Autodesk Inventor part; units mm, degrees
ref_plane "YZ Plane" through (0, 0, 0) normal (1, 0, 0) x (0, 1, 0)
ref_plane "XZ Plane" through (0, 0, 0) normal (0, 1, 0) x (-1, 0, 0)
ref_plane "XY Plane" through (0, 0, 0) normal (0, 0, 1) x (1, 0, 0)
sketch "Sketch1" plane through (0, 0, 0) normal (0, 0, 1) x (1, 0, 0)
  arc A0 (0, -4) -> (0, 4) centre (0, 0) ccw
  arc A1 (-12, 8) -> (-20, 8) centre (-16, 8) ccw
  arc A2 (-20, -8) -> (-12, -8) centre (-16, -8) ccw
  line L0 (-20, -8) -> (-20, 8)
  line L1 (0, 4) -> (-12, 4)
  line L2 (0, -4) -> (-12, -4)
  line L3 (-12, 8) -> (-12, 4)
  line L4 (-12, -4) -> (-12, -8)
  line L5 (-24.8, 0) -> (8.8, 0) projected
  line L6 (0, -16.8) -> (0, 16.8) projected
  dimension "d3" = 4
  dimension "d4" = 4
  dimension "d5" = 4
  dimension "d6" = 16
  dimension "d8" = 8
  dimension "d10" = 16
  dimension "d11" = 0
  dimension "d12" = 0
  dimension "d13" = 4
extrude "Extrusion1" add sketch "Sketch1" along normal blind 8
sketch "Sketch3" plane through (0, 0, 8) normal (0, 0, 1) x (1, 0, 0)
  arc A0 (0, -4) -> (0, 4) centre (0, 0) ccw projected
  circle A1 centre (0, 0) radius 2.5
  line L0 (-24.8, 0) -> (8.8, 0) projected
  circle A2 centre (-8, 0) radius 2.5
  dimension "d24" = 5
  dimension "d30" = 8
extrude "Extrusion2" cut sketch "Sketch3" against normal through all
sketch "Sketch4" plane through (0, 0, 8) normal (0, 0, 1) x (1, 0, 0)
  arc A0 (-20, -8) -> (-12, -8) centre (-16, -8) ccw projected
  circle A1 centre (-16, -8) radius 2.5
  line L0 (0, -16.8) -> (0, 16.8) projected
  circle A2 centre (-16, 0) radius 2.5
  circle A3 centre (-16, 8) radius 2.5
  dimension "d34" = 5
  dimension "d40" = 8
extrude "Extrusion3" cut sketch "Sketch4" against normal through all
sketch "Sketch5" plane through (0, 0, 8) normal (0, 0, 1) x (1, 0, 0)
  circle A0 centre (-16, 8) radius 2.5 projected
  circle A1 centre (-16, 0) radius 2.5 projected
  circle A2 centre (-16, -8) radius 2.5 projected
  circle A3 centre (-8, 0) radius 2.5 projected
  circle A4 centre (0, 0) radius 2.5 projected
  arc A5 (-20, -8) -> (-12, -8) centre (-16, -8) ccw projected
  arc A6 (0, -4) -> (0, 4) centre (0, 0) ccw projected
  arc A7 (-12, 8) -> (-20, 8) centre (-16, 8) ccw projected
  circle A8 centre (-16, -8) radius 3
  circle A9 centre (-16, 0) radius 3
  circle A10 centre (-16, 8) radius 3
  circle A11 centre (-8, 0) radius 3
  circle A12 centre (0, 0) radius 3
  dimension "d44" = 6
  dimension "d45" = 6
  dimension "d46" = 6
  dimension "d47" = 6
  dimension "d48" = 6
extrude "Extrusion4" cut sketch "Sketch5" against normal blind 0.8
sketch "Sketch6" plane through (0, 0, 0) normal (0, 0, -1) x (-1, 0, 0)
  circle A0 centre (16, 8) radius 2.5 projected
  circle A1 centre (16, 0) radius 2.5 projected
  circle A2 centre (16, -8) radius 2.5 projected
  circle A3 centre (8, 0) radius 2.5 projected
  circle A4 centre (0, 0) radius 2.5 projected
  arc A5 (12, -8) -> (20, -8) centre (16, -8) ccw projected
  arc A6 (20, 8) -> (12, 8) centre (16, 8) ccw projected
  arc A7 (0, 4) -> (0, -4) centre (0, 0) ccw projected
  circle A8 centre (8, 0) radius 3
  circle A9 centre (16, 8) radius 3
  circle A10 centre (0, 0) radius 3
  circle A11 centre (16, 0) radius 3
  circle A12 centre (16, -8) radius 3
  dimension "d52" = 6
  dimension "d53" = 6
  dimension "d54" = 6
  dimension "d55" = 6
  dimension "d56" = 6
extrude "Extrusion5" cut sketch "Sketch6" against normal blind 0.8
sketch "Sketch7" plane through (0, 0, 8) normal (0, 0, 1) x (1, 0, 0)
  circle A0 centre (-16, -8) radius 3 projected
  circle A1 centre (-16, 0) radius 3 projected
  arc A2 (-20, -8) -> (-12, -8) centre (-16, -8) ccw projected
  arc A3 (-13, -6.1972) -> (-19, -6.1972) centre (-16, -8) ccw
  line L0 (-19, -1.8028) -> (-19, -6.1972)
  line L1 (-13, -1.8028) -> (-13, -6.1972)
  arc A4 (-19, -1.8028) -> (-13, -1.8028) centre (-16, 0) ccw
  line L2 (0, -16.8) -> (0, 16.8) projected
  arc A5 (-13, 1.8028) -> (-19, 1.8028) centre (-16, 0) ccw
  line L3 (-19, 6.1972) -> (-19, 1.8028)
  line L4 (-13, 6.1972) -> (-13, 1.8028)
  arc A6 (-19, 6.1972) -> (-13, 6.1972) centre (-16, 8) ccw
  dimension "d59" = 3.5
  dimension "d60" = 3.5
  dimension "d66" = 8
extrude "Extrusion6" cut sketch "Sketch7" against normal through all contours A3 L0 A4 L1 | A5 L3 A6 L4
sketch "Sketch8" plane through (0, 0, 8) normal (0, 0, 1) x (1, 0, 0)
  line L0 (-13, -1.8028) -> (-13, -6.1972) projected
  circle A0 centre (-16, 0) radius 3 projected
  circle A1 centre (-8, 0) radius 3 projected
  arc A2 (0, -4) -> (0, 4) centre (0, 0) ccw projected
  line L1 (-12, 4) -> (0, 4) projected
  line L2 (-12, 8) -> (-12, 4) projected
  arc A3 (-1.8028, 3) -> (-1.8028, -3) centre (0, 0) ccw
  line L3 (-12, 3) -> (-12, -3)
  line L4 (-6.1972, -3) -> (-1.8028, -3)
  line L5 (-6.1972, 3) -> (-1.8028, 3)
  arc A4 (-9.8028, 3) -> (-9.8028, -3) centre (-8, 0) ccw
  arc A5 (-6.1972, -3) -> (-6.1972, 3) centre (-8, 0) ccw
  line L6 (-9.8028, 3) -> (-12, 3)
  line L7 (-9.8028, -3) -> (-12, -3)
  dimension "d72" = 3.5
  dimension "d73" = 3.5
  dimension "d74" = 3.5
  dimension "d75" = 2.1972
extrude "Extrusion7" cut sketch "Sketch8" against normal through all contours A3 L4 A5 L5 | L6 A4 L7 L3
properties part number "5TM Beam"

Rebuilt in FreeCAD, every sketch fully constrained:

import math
import FreeCAD as App
import Part
import Sketcher
from FreeCAD import Vector

doc = App.newDocument("Part")
body = doc.addObject("PartDesign::Body", "Body")

# Sketch on XY plane
sketch1 = doc.addObject("Sketcher::SketchObject", "Sketch")
body.addObject(sketch1)
sketch1.AttachmentSupport = (doc.XY_Plane, [""])
sketch1.MapMode = "FlatFace"
sketch1.addGeometry([
    Part.ArcOfCircle(Part.Circle(Vector(0, 0, 0), Vector(0, 0, 1), 4), math.radians(-90), math.radians(90)),  # 0
    Part.LineSegment(Vector(0, 4, 0), Vector(-12, 4, 0)),  # 1
    Part.LineSegment(Vector(-12, 4, 0), Vector(-12, 8, 0)),  # 2
    Part.ArcOfCircle(Part.Circle(Vector(-16, 8, 0), Vector(0, 0, 1), 4), math.radians(0), math.radians(180)),  # 3
    Part.LineSegment(Vector(-20, 8, 0), Vector(-20, -8, 0)),  # 4
    Part.ArcOfCircle(Part.Circle(Vector(-16, -8, 0), Vector(0, 0, 1), 4), math.radians(180), math.radians(360)),  # 5
    Part.LineSegment(Vector(-12, -8, 0), Vector(-12, -4, 0)),  # 6
    Part.LineSegment(Vector(-12, -4, 0), Vector(0, -4, 0)),  # 7
], False)
sketch1.addConstraint([
    Sketcher.Constraint("Tangent", 0, 2, 1, 1),
    Sketcher.Constraint("Coincident", 1, 2, 2, 1),
    Sketcher.Constraint("Tangent", 2, 2, 3, 1),
    Sketcher.Constraint("Tangent", 3, 2, 4, 1),
    Sketcher.Constraint("Tangent", 4, 2, 5, 1),
    Sketcher.Constraint("Tangent", 5, 2, 6, 1),
    Sketcher.Constraint("Coincident", 6, 2, 7, 1),
    Sketcher.Constraint("Tangent", 7, 2, 0, 1),
    Sketcher.Constraint("Horizontal", 1),
    Sketcher.Constraint("Vertical", 2),
    Sketcher.Constraint("Vertical", 4),
    Sketcher.Constraint("Vertical", 6),
    Sketcher.Constraint("Horizontal", 7),
    Sketcher.Constraint("Coincident", 0, 3, -1, 1),
    Sketcher.Constraint("Equal", 0, 3),
    Sketcher.Constraint("Equal", 3, 5),
    Sketcher.Constraint("Equal", 2, 6),
    Sketcher.Constraint("Radius", 0, 4.0),
    Sketcher.Constraint("DistanceY", 2, 1, 2, 2, 4.0),
    Sketcher.Constraint("DistanceX", 3, 3, -1, 1, 16.0),
])
pad1 = doc.addObject("PartDesign::Pad", "Pad")
body.addObject(pad1)
pad1.Profile = sketch1
pad1.Length = 8

# Sketch on XY plane
sketch2 = doc.addObject("Sketcher::SketchObject", "Sketch001")
body.addObject(sketch2)
sketch2.AttachmentSupport = (doc.XY_Plane, [""])
sketch2.MapMode = "FlatFace"
sketch2.AttachmentOffset = App.Placement(Vector(0, 0, 8), App.Rotation())
sketch2.addGeometry([
    Part.Circle(Vector(0, 0, 0), Vector(0, 0, 1), 2.5),
    Part.Circle(Vector(-8, 0, 0), Vector(0, 0, 1), 2.5),
], False)
sketch2.addConstraint([
    Sketcher.Constraint("Coincident", 0, 3, -1, 1),
    Sketcher.Constraint("Equal", 0, 1),
    Sketcher.Constraint("PointOnObject", 1, 3, -1),
    Sketcher.Constraint("Diameter", 0, 5.0),
    Sketcher.Constraint("DistanceX", 1, 3, -1, 1, 8.0),
])
pocket1 = doc.addObject("PartDesign::Pocket", "Pocket")
body.addObject(pocket1)
pocket1.Profile = sketch2
pocket1.Type = "ThroughAll"

# Sketch on XY plane
sketch3 = doc.addObject("Sketcher::SketchObject", "Sketch002")
body.addObject(sketch3)
sketch3.AttachmentSupport = (doc.XY_Plane, [""])
sketch3.MapMode = "FlatFace"
sketch3.AttachmentOffset = App.Placement(Vector(0, 0, 8), App.Rotation())
sketch3.addGeometry([
    Part.Circle(Vector(-16, -8, 0), Vector(0, 0, 1), 2.5),
    Part.Circle(Vector(-16, 0, 0), Vector(0, 0, 1), 2.5),
    Part.Circle(Vector(-16, 8, 0), Vector(0, 0, 1), 2.5),
], False)
sketch3.addConstraint([
    Sketcher.Constraint("Equal", 0, 1),
    Sketcher.Constraint("Equal", 1, 2),
    Sketcher.Constraint("Symmetric", 0, 3, 2, 3, -1),
    Sketcher.Constraint("PointOnObject", 1, 3, -1),
    Sketcher.Constraint("Vertical", 0, 3, 1, 3),
    Sketcher.Constraint("Diameter", 0, 5.0),
    Sketcher.Constraint("DistanceY", 0, 3, -1, 1, 8.0),
    Sketcher.Constraint("DistanceX", 0, 3, -1, 1, 16.0),
])
pocket2 = doc.addObject("PartDesign::Pocket", "Pocket001")
body.addObject(pocket2)
pocket2.Profile = sketch3
pocket2.Type = "ThroughAll"

# Sketch on XY plane
sketch4 = doc.addObject("Sketcher::SketchObject", "Sketch003")
body.addObject(sketch4)
sketch4.AttachmentSupport = (doc.XY_Plane, [""])
sketch4.MapMode = "FlatFace"
sketch4.AttachmentOffset = App.Placement(Vector(0, 0, 8), App.Rotation())
sketch4.addGeometry([
    Part.Circle(Vector(-16, -8, 0), Vector(0, 0, 1), 3),  # 0
    Part.Circle(Vector(-16, -8, 0), Vector(0, 0, 1), 2.5),  # 1
    Part.Circle(Vector(-16, 0, 0), Vector(0, 0, 1), 3),  # 2
    Part.Circle(Vector(-16, 0, 0), Vector(0, 0, 1), 2.5),  # 3
    Part.Circle(Vector(-16, 8, 0), Vector(0, 0, 1), 3),  # 4
    Part.Circle(Vector(-16, 8, 0), Vector(0, 0, 1), 2.5),  # 5
    Part.Circle(Vector(-8, 0, 0), Vector(0, 0, 1), 3),  # 6
    Part.Circle(Vector(-8, 0, 0), Vector(0, 0, 1), 2.5),  # 7
    Part.Circle(Vector(0, 0, 0), Vector(0, 0, 1), 3),  # 8
    Part.Circle(Vector(0, 0, 0), Vector(0, 0, 1), 2.5),  # 9
], False)
sketch4.addConstraint([
    Sketcher.Constraint("Coincident", 8, 3, -1, 1),
    Sketcher.Constraint("Coincident", 9, 3, -1, 1),
    Sketcher.Constraint("Coincident", 1, 3, 0, 3),
    Sketcher.Constraint("Coincident", 3, 3, 2, 3),
    Sketcher.Constraint("Coincident", 5, 3, 4, 3),
    Sketcher.Constraint("Coincident", 7, 3, 6, 3),
    Sketcher.Constraint("Equal", 0, 2),
    Sketcher.Constraint("Equal", 1, 3),
    Sketcher.Constraint("Equal", 2, 4),
    Sketcher.Constraint("Equal", 3, 5),
    Sketcher.Constraint("Equal", 4, 6),
    Sketcher.Constraint("Equal", 5, 7),
    Sketcher.Constraint("Equal", 6, 8),
    Sketcher.Constraint("Equal", 7, 9),
    Sketcher.Constraint("Symmetric", 0, 3, 4, 3, -1),
    Sketcher.Constraint("PointOnObject", 2, 3, -1),
    Sketcher.Constraint("PointOnObject", 6, 3, -1),
    Sketcher.Constraint("Vertical", 1, 3, 2, 3),
    Sketcher.Constraint("Diameter", 0, 6.0),
    Sketcher.Constraint("Diameter", 1, 5.0),
    Sketcher.Constraint("DistanceX", 0, 3, -1, 1, 16.0),
    Sketcher.Constraint("DistanceY", 0, 3, -1, 1, 8.0),
    Sketcher.Constraint("DistanceX", 6, 3, -1, 1, 8.0),
])
pocket3 = doc.addObject("PartDesign::Pocket", "Pocket002")
body.addObject(pocket3)
pocket3.Profile = sketch4
pocket3.Length = 0.8

# Sketch on XY plane
sketch5 = doc.addObject("Sketcher::SketchObject", "Sketch004")
body.addObject(sketch5)
sketch5.AttachmentSupport = (doc.XY_Plane, [""])
sketch5.MapMode = "FlatFace"
sketch5.addGeometry([
    Part.Circle(Vector(-8, 0, 0), Vector(0, 0, 1), 3),  # 0
    Part.Circle(Vector(-8, 0, 0), Vector(0, 0, 1), 2.5),  # 1
    Part.Circle(Vector(-16, 8, 0), Vector(0, 0, 1), 3),  # 2
    Part.Circle(Vector(-16, 8, 0), Vector(0, 0, 1), 2.5),  # 3
    Part.Circle(Vector(0, 0, 0), Vector(0, 0, 1), 3),  # 4
    Part.Circle(Vector(0, 0, 0), Vector(0, 0, 1), 2.5),  # 5
    Part.Circle(Vector(-16, 0, 0), Vector(0, 0, 1), 3),  # 6
    Part.Circle(Vector(-16, 0, 0), Vector(0, 0, 1), 2.5),  # 7
    Part.Circle(Vector(-16, -8, 0), Vector(0, 0, 1), 3),  # 8
    Part.Circle(Vector(-16, -8, 0), Vector(0, 0, 1), 2.5),  # 9
], False)
sketch5.addConstraint([
    Sketcher.Constraint("Coincident", 4, 3, -1, 1),
    Sketcher.Constraint("Coincident", 5, 3, -1, 1),
    Sketcher.Constraint("Coincident", 1, 3, 0, 3),
    Sketcher.Constraint("Coincident", 3, 3, 2, 3),
    Sketcher.Constraint("Coincident", 7, 3, 6, 3),
    Sketcher.Constraint("Coincident", 9, 3, 8, 3),
    Sketcher.Constraint("Equal", 0, 2),
    Sketcher.Constraint("Equal", 1, 3),
    Sketcher.Constraint("Equal", 2, 4),
    Sketcher.Constraint("Equal", 3, 5),
    Sketcher.Constraint("Equal", 4, 6),
    Sketcher.Constraint("Equal", 5, 7),
    Sketcher.Constraint("Equal", 6, 8),
    Sketcher.Constraint("Equal", 7, 9),
    Sketcher.Constraint("Symmetric", 2, 3, 8, 3, -1),
    Sketcher.Constraint("PointOnObject", 0, 3, -1),
    Sketcher.Constraint("PointOnObject", 6, 3, -1),
    Sketcher.Constraint("Vertical", 3, 3, 6, 3),
    Sketcher.Constraint("Diameter", 0, 6.0),
    Sketcher.Constraint("Diameter", 1, 5.0),
    Sketcher.Constraint("DistanceX", 0, 3, -1, 1, 8.0),
    Sketcher.Constraint("DistanceX", 2, 3, -1, 1, 16.0),
    Sketcher.Constraint("DistanceY", -1, 1, 2, 3, 8.0),
])
pocket4 = doc.addObject("PartDesign::Pocket", "Pocket003")
body.addObject(pocket4)
pocket4.Profile = sketch5
pocket4.Length = 0.8
pocket4.Reversed = True

# Sketch on XY plane
sketch6 = doc.addObject("Sketcher::SketchObject", "Sketch005")
body.addObject(sketch6)
sketch6.AttachmentSupport = (doc.XY_Plane, [""])
sketch6.MapMode = "FlatFace"
sketch6.AttachmentOffset = App.Placement(Vector(0, 0, 8), App.Rotation())
sketch6.addGeometry([
    Part.ArcOfCircle(Part.Circle(Vector(-16, -8, 0), Vector(0, 0, 1), 3.5), math.radians(31), math.radians(149)),  # 0
    Part.LineSegment(Vector(-13, -6.2, 0), Vector(-13, -1.8, 0)),  # 1
    Part.ArcOfCircle(Part.Circle(Vector(-16, 0, 0), Vector(0, 0, 1), 3.5), math.radians(-149), math.radians(-31)),  # 2
    Part.LineSegment(Vector(-19, -1.8, 0), Vector(-19, -6.2, 0)),  # 3
    Part.ArcOfCircle(Part.Circle(Vector(-16, 0, 0), Vector(0, 0, 1), 3.5), math.radians(31), math.radians(149)),  # 4
    Part.LineSegment(Vector(-13, 1.8, 0), Vector(-13, 6.2, 0)),  # 5
    Part.ArcOfCircle(Part.Circle(Vector(-16, 8, 0), Vector(0, 0, 1), 3.5), math.radians(-149), math.radians(-31)),  # 6
    Part.LineSegment(Vector(-19, 6.2, 0), Vector(-19, 1.8, 0)),  # 7
], False)
sketch6.addConstraint([
    Sketcher.Constraint("Coincident", 0, 1, 1, 1),
    Sketcher.Constraint("Coincident", 1, 2, 2, 2),
    Sketcher.Constraint("Coincident", 2, 1, 3, 1),
    Sketcher.Constraint("Coincident", 3, 2, 0, 2),
    Sketcher.Constraint("Coincident", 4, 1, 5, 1),
    Sketcher.Constraint("Coincident", 5, 2, 6, 2),
    Sketcher.Constraint("Coincident", 6, 1, 7, 1),
    Sketcher.Constraint("Coincident", 7, 2, 4, 2),
    Sketcher.Constraint("Vertical", 1),
    Sketcher.Constraint("Vertical", 3),
    Sketcher.Constraint("Vertical", 5),
    Sketcher.Constraint("Vertical", 7),
    Sketcher.Constraint("Coincident", 4, 3, 2, 3),
    Sketcher.Constraint("Equal", 0, 2),
    Sketcher.Constraint("Equal", 2, 4),
    Sketcher.Constraint("Equal", 4, 6),
    Sketcher.Constraint("Symmetric", 0, 3, 6, 3, -1),
    Sketcher.Constraint("Symmetric", 1, 2, 4, 1, -1),
    Sketcher.Constraint("Horizontal", 1, 2, 2, 1),
    Sketcher.Constraint("Horizontal", 0, 1, 3, 2),
    Sketcher.Constraint("Horizontal", 5, 2, 6, 1),
    Sketcher.Constraint("Radius", 0, 3.5),
    Sketcher.Constraint("DistanceY", 0, 3, -1, 1, 8.0),
    Sketcher.Constraint("DistanceX", 0, 3, -1, 1, 16.0),
    Sketcher.Constraint("DistanceX", 0, 1, -1, 1, 13.0),
])
pocket5 = doc.addObject("PartDesign::Pocket", "Pocket004")
body.addObject(pocket5)
pocket5.Profile = sketch6
pocket5.Type = "ThroughAll"

# Sketch on XY plane
sketch7 = doc.addObject("Sketcher::SketchObject", "Sketch006")
body.addObject(sketch7)
sketch7.AttachmentSupport = (doc.XY_Plane, [""])
sketch7.MapMode = "FlatFace"
sketch7.AttachmentOffset = App.Placement(Vector(0, 0, 8), App.Rotation())
sketch7.addGeometry([
    Part.ArcOfCircle(Part.Circle(Vector(0, 0, 0), Vector(0, 0, 1), 3.5), math.radians(121), math.radians(239)),  # 0
    Part.LineSegment(Vector(-1.8, 3, 0), Vector(-6.2, 3, 0)),  # 1
    Part.ArcOfCircle(Part.Circle(Vector(-8, 0, 0), Vector(0, 0, 1), 3.5), math.radians(-59), math.radians(59)),  # 2
    Part.LineSegment(Vector(-6.2, -3, 0), Vector(-1.8, -3, 0)),  # 3
    Part.LineSegment(Vector(-9.8, 3, 0), Vector(-12, 3, 0)),  # 4
    Part.LineSegment(Vector(-12, 3, 0), Vector(-12, -3, 0)),  # 5
    Part.LineSegment(Vector(-12, -3, 0), Vector(-9.8, -3, 0)),  # 6
    Part.ArcOfCircle(Part.Circle(Vector(-8, 0, 0), Vector(0, 0, 1), 3.5), math.radians(121), math.radians(239)),  # 7
], False)
sketch7.addConstraint([
    Sketcher.Constraint("Coincident", 0, 1, 1, 1),
    Sketcher.Constraint("Coincident", 1, 2, 2, 2),
    Sketcher.Constraint("Coincident", 2, 1, 3, 1),
    Sketcher.Constraint("Coincident", 3, 2, 0, 2),
    Sketcher.Constraint("Coincident", 4, 2, 5, 1),
    Sketcher.Constraint("Coincident", 5, 2, 6, 1),
    Sketcher.Constraint("Coincident", 6, 2, 7, 2),
    Sketcher.Constraint("Coincident", 7, 1, 4, 1),
    Sketcher.Constraint("Horizontal", 1),
    Sketcher.Constraint("Horizontal", 3),
    Sketcher.Constraint("Horizontal", 4),
    Sketcher.Constraint("Vertical", 5),
    Sketcher.Constraint("Horizontal", 6),
    Sketcher.Constraint("Coincident", 0, 3, -1, 1),
    Sketcher.Constraint("Coincident", 7, 3, 2, 3),
    Sketcher.Constraint("Equal", 0, 2),
    Sketcher.Constraint("Equal", 2, 7),
    Sketcher.Constraint("Symmetric", 1, 2, 2, 1, -1),
    Sketcher.Constraint("Horizontal", 1, 2, 4, 2),
    Sketcher.Constraint("Horizontal", 3, 2, 5, 2),
    Sketcher.Constraint("Radius", 0, 3.5),
    Sketcher.Constraint("DistanceY", 5, 2, 5, 1, 6.0),
    Sketcher.Constraint("DistanceX", 4, 2, 4, 1, 2.1972),
    Sketcher.Constraint("DistanceX", 2, 3, -1, 1, 8.0),
])
pocket6 = doc.addObject("PartDesign::Pocket", "Pocket005")
body.addObject(pocket6)
pocket6.Profile = sketch7
pocket6.Type = "ThroughAll"

doc.recompute()
